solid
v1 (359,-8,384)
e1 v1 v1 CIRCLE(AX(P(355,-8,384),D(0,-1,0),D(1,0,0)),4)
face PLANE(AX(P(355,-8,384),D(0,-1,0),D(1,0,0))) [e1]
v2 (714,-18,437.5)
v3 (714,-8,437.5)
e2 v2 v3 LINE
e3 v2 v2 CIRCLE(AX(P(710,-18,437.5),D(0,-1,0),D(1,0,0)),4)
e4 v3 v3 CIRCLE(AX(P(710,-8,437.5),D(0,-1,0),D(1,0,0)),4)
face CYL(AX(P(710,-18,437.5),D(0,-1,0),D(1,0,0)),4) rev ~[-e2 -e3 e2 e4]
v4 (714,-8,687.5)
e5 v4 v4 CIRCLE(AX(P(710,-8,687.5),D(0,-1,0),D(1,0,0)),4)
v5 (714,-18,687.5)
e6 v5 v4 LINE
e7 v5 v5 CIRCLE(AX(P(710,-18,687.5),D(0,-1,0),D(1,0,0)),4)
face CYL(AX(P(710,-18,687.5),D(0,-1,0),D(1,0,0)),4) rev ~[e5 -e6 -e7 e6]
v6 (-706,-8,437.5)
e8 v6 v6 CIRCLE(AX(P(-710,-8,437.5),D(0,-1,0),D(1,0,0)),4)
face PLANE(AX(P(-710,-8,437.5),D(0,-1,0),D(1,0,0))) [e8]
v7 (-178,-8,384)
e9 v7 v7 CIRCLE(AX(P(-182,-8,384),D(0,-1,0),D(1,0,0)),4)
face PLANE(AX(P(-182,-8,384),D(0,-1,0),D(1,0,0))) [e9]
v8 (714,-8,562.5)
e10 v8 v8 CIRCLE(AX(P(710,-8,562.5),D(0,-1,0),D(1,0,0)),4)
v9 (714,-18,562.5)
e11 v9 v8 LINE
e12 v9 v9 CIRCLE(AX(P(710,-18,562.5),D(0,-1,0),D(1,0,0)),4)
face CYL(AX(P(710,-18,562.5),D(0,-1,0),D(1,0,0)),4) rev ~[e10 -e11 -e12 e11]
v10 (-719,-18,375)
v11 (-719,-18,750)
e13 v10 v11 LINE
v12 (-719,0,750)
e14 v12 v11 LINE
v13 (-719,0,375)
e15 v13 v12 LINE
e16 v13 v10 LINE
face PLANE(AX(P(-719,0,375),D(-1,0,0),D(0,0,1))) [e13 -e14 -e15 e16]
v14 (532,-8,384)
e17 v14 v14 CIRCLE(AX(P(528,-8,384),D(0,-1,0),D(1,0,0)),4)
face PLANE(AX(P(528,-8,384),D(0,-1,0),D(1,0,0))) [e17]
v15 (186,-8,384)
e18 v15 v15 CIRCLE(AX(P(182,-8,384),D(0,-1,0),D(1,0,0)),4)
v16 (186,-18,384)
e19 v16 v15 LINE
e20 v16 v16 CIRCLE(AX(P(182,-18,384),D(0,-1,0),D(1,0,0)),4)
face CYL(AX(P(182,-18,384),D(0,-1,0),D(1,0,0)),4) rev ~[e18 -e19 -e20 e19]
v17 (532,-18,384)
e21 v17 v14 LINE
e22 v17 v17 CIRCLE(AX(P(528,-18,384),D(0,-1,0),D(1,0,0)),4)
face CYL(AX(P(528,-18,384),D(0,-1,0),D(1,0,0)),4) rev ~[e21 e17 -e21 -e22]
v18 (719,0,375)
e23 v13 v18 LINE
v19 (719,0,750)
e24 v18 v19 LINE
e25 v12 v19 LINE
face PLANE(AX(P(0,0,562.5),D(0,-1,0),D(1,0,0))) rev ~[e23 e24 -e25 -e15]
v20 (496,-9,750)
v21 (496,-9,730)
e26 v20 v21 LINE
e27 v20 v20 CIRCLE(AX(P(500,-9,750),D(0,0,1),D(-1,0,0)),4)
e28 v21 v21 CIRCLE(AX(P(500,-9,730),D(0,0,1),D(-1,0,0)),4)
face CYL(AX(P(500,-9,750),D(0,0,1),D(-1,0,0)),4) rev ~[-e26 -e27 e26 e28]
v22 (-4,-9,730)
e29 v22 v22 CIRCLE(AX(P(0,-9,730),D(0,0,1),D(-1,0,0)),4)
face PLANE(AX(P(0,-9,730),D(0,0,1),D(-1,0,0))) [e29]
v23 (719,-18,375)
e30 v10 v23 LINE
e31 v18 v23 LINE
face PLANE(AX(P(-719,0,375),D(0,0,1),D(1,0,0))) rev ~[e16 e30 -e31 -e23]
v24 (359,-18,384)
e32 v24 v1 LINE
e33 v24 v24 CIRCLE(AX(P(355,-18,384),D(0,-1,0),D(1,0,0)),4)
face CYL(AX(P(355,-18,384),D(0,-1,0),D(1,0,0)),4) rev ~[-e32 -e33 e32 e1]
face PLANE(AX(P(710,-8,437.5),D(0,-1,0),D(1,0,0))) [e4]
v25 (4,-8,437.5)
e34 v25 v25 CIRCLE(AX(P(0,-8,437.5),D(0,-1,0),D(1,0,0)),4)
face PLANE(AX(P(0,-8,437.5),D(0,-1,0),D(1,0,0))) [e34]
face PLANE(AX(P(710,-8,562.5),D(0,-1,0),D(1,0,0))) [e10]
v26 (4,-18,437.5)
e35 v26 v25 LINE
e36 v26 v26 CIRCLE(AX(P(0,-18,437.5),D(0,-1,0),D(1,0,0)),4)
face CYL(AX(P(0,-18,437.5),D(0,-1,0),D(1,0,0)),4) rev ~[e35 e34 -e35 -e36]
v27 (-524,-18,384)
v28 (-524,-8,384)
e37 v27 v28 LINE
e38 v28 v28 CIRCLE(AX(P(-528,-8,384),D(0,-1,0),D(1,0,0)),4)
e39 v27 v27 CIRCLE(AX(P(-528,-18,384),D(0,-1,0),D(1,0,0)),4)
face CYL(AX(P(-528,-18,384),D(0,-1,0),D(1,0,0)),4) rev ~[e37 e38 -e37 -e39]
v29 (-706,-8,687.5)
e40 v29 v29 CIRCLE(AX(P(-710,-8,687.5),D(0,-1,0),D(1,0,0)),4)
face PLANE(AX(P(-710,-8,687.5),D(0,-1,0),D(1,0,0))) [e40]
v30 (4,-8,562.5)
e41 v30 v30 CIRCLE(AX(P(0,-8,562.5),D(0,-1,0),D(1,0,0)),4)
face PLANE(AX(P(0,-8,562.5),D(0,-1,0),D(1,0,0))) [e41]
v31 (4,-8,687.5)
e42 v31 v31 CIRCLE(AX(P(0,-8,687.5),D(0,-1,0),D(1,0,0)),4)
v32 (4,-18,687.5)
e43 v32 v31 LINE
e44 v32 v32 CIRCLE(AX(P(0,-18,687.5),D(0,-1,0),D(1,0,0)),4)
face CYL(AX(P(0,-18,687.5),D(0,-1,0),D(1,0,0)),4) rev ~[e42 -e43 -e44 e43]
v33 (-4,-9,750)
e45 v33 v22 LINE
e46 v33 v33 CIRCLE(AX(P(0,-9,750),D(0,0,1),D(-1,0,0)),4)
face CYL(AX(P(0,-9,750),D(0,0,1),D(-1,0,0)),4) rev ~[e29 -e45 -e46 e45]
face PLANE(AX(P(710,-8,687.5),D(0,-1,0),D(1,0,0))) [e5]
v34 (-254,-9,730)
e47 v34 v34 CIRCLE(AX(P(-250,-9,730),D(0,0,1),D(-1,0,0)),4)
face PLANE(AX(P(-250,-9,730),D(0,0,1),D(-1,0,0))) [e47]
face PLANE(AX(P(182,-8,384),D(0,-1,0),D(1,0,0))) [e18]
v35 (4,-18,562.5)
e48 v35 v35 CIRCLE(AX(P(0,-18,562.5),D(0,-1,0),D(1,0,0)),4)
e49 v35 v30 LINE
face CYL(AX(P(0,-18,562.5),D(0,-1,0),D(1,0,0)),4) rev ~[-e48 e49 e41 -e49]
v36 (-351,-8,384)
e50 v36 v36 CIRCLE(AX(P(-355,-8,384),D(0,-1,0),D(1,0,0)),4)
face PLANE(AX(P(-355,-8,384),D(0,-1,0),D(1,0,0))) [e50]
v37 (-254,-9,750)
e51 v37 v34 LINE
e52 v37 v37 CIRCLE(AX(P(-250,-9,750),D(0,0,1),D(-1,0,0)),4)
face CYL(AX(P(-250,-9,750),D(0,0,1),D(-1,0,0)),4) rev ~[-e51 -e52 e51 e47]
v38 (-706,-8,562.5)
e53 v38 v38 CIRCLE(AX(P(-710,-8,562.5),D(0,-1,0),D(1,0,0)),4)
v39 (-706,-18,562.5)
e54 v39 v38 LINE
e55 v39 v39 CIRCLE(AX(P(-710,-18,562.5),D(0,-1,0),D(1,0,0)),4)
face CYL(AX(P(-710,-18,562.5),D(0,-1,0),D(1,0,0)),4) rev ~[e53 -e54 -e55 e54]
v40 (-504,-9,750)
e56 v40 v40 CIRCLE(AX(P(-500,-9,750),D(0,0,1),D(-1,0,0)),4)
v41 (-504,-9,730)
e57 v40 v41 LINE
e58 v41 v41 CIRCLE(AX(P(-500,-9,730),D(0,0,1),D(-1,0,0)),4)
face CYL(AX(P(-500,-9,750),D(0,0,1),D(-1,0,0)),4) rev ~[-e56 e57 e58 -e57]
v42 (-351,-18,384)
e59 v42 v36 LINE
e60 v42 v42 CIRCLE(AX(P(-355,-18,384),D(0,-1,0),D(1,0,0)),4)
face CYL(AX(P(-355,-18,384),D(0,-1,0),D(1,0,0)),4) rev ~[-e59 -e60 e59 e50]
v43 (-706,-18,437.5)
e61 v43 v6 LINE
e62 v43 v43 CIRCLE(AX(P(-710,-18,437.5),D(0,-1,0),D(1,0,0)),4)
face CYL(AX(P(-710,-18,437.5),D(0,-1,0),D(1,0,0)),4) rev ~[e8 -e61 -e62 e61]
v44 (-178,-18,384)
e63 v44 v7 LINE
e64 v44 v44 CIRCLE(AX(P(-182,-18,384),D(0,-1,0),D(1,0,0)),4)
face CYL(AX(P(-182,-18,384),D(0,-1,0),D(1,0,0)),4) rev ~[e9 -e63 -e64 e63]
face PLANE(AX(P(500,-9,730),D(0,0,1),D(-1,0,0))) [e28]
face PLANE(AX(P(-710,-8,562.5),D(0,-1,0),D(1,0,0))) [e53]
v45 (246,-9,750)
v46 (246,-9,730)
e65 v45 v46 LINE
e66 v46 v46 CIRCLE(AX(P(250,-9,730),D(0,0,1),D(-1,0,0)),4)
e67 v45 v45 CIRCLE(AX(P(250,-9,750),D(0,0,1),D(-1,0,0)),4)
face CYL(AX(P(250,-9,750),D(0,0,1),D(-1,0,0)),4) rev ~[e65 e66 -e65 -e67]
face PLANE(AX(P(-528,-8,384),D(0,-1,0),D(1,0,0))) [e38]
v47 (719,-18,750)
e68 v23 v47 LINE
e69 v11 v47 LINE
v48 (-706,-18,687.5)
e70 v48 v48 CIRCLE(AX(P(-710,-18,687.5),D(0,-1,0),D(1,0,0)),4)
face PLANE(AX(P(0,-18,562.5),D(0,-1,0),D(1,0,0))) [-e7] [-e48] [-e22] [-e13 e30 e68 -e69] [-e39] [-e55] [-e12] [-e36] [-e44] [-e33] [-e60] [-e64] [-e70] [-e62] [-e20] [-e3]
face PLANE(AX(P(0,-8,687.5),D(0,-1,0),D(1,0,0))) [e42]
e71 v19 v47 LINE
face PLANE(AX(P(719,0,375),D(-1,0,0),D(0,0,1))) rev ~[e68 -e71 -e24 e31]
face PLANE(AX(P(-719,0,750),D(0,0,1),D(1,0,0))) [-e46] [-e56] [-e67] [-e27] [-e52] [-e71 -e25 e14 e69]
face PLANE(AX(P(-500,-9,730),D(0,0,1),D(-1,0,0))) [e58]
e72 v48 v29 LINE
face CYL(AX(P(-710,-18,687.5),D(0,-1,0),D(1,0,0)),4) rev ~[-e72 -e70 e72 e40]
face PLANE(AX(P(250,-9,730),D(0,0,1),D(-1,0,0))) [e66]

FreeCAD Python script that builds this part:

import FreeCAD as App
import Part
import Sketcher

V = App.Vector
Q = App.Units.Quantity

doc = App.newDocument("Part")
params = doc.addObject("Spreadsheet::Sheet", "Params")
for row, (alias, value) in enumerate([
    ("sketch1_width", "1438 mm"),
    ("sketch1_height", "375 mm"),
    ("pad1_length", "18 mm"),
    ("sketch2_diameter", "8 mm"),
    ("pocket1_length", "10 mm"),
    ("sketch3_diameter", "8 mm"),
    ("pocket2_length", "20 mm"),
], start=1):
    params.set(f"A{row}", alias)
    params.set(f"B{row}", "=" + value)
    params.setAlias(f"B{row}", alias)

body = doc.addObject("PartDesign::Body", "Body")

sketch1 = doc.addObject("Sketcher::SketchObject", "Sketch")
body.addObject(sketch1)
sketch1.AttachmentSupport = (doc.XZ_Plane, [""])
sketch1.MapMode = "FlatFace"
sketch1.addGeometry([
    Part.LineSegment(V(-719, 750, 0), V(-719, 375, 0)),
    Part.LineSegment(V(-719, 375, 0), V(719, 375, 0)),
    Part.LineSegment(V(719, 375, 0), V(719, 750, 0)),
    Part.LineSegment(V(719, 750, 0), V(-719, 750, 0)),
], False)
sketch1.addConstraint([
    Sketcher.Constraint("Coincident", 0, 2, 1, 1),
    Sketcher.Constraint("Coincident", 1, 2, 2, 1),
    Sketcher.Constraint("Coincident", 2, 2, 3, 1),
    Sketcher.Constraint("Coincident", 3, 2, 0, 1),
    Sketcher.Constraint("Vertical", 0),
    Sketcher.Constraint("Horizontal", 1),
    Sketcher.Constraint("Vertical", 2),
    Sketcher.Constraint("Horizontal", 3),
    Sketcher.Constraint("DistanceX", 1, 1, 1, 2, Q("1438 mm")),
    Sketcher.Constraint("DistanceY", 0, 2, 0, 1, Q("375 mm")),
    Sketcher.Constraint("DistanceX", 0, 2, -1, 1, Q("719 mm")),
    Sketcher.Constraint("DistanceY", -1, 1, 0, 2, Q("375 mm")),
])
sketch1.setExpression("Constraints[8]", "Params.sketch1_width")
sketch1.setExpression("Constraints[9]", "Params.sketch1_height")
pad1 = doc.addObject("PartDesign::Pad", "Pad")
body.addObject(pad1)
pad1.Profile = sketch1
pad1.setExpression("Length", "Params.pad1_length")

sketch2 = doc.addObject("Sketcher::SketchObject", "Sketch001")
body.addObject(sketch2)
sketch2.AttachmentSupport = (doc.XZ_Plane, [""])
sketch2.MapMode = "FlatFace"
sketch2.AttachmentOffset = App.Placement(V(0, 0, 18), App.Rotation())
sketch2.addGeometry([
    Part.Circle(V(-710, 687.5, 0), V(0, 0, 1), 4),
    Part.Circle(V(-710, 562.5, 0), V(0, 0, 1), 4),
    Part.Circle(V(-710, 437.5, 0), V(0, 0, 1), 4),
    Part.Circle(V(0, 562.5, 0), V(0, 0, 1), 4),
    Part.Circle(V(0, 687.5, 0), V(0, 0, 1), 4),
    Part.Circle(V(0, 437.5, 0), V(0, 0, 1), 4),
    Part.Circle(V(710, 687.5, 0), V(0, 0, 1), 4),
    Part.Circle(V(710, 562.5, 0), V(0, 0, 1), 4),
    Part.Circle(V(710, 437.5, 0), V(0, 0, 1), 4),
    Part.Circle(V(182, 384, 0), V(0, 0, 1), 4),
    Part.Circle(V(355, 384, 0), V(0, 0, 1), 4),
    Part.Circle(V(528, 384, 0), V(0, 0, 1), 4),
    Part.Circle(V(-528, 384, 0), V(0, 0, 1), 4),
    Part.Circle(V(-355, 384, 0), V(0, 0, 1), 4),
    Part.Circle(V(-182, 384, 0), V(0, 0, 1), 4),
], False)
sketch2.addConstraint([
    Sketcher.Constraint("Equal", 0, 1),
    Sketcher.Constraint("Equal", 1, 2),
    Sketcher.Constraint("Equal", 2, 3),
    Sketcher.Constraint("Equal", 3, 4),
    Sketcher.Constraint("Equal", 4, 5),
    Sketcher.Constraint("Equal", 5, 6),
    Sketcher.Constraint("Equal", 6, 7),
    Sketcher.Constraint("Equal", 7, 8),
    Sketcher.Constraint("Equal", 8, 9),
    Sketcher.Constraint("Equal", 9, 10),
    Sketcher.Constraint("Equal", 10, 11),
    Sketcher.Constraint("Equal", 11, 12),
    Sketcher.Constraint("Equal", 12, 13),
    Sketcher.Constraint("Equal", 13, 14),
    Sketcher.Constraint("Symmetric", 0, 3, 6, 3, -2),
    Sketcher.Constraint("Symmetric", 1, 3, 7, 3, -2),
    Sketcher.Constraint("Symmetric", 2, 3, 8, 3, -2),
    Sketcher.Constraint("Symmetric", 11, 3, 12, 3, -2),
    Sketcher.Constraint("Symmetric", 10, 3, 13, 3, -2),
    Sketcher.Constraint("Symmetric", 9, 3, 14, 3, -2),
    Sketcher.Constraint("PointOnObject", 3, 3, -2),
    Sketcher.Constraint("PointOnObject", 4, 3, -2),
    Sketcher.Constraint("PointOnObject", 5, 3, -2),
    Sketcher.Constraint("Horizontal", 1, 3, 3, 3),
    Sketcher.Constraint("Horizontal", 0, 3, 4, 3),
    Sketcher.Constraint("Horizontal", 2, 3, 5, 3),
    Sketcher.Constraint("Horizontal", 9, 3, 10, 3),
    Sketcher.Constraint("Horizontal", 10, 3, 11, 3),
    Sketcher.Constraint("Vertical", 0, 3, 1, 3),
    Sketcher.Constraint("Vertical", 1, 3, 2, 3),
    Sketcher.Constraint("Diameter", 0, Q("8 mm")),
    Sketcher.Constraint("DistanceX", 0, 3, -1, 1, Q("710 mm")),
    Sketcher.Constraint("DistanceX", -1, 1, 9, 3, Q("182 mm")),
    Sketcher.Constraint("DistanceY", -1, 1, 9, 3, Q("384 mm")),
    Sketcher.Constraint("DistanceX", -1, 1, 10, 3, Q("355 mm")),
    Sketcher.Constraint("DistanceX", -1, 1, 11, 3, Q("528 mm")),
    Sketcher.Constraint("DistanceY", 1, 3, 0, 3, Q("125 mm")),
    Sketcher.Constraint("DistanceY", 2, 3, 1, 3, Q("125 mm")),
    Sketcher.Constraint("DistanceY", -1, 1, 0, 3, Q("687.5 mm")),
])
sketch2.setExpression("Constraints[30]", "Params.sketch2_diameter")
pocket1 = doc.addObject("PartDesign::Pocket", "Pocket")
body.addObject(pocket1)
pocket1.Profile = sketch2
pocket1.setExpression("Length", "Params.pocket1_length")

sketch3 = doc.addObject("Sketcher::SketchObject", "Sketch002")
body.addObject(sketch3)
sketch3.AttachmentSupport = (doc.XY_Plane, [""])
sketch3.MapMode = "FlatFace"
sketch3.AttachmentOffset = App.Placement(V(0, 0, 750), App.Rotation())
sketch3.addGeometry([
    Part.Circle(V(0, -9, 0), V(0, 0, 1), 4),
    Part.Circle(V(250, -9, 0), V(0, 0, 1), 4),
    Part.Circle(V(500, -9, 0), V(0, 0, 1), 4),
    Part.Circle(V(-250, -9, 0), V(0, 0, 1), 4),
    Part.Circle(V(-500, -9, 0), V(0, 0, 1), 4),
], False)
sketch3.addConstraint([
    Sketcher.Constraint("Equal", 0, 1),
    Sketcher.Constraint("Equal", 1, 2),
    Sketcher.Constraint("Equal", 2, 3),
    Sketcher.Constraint("Equal", 3, 4),
    Sketcher.Constraint("Symmetric", 1, 3, 3, 3, -2),
    Sketcher.Constraint("Symmetric", 2, 3, 4, 3, -2),
    Sketcher.Constraint("PointOnObject", 0, 3, -2),
    Sketcher.Constraint("Horizontal", 0, 3, 1, 3),
    Sketcher.Constraint("Horizontal", 1, 3, 2, 3),
    Sketcher.Constraint("Diameter", 0, Q("8 mm")),
    Sketcher.Constraint("DistanceY", 0, 3, -1, 1, Q("9 mm")),
    Sketcher.Constraint("DistanceX", -1, 1, 1, 3, Q("250 mm")),
    Sketcher.Constraint("DistanceX", -1, 1, 2, 3, Q("500 mm")),
])
sketch3.setExpression("Constraints[9]", "Params.sketch3_diameter")
pocket2 = doc.addObject("PartDesign::Pocket", "Pocket001")
body.addObject(pocket2)
pocket2.Profile = sketch3
pocket2.setExpression("Length", "Params.pocket2_length")

doc.recompute()
